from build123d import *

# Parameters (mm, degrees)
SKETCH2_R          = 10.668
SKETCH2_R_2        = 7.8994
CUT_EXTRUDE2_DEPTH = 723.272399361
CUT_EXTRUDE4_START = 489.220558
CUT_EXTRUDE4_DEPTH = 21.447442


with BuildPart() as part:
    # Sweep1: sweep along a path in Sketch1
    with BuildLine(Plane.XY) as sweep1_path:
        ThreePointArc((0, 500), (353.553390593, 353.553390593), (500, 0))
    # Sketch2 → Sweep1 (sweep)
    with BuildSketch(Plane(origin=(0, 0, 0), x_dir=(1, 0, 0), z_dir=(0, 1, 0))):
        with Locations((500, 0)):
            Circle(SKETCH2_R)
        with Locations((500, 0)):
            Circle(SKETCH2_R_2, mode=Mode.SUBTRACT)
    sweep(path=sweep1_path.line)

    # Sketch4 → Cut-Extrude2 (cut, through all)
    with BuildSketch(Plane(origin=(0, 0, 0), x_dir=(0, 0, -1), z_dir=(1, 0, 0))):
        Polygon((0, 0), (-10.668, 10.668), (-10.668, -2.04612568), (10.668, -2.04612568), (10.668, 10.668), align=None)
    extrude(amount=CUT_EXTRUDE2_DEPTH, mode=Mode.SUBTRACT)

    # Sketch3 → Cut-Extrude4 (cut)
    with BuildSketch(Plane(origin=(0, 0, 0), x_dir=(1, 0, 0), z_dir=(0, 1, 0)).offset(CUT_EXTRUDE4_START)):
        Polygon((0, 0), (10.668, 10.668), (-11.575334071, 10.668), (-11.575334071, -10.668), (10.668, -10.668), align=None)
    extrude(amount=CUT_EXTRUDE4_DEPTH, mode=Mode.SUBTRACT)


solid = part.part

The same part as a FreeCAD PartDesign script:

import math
import FreeCAD as App
import Part
import Sketcher
from FreeCAD import Vector
Q = App.Units.Quantity


def add_polygon(sketch, points):
    """Adds a closed chain of lines whose ends are joined by coincident constraints."""
    first, n = sketch.GeometryCount, len(points)
    for a, b in zip(points, points[1:] + points[:1]):
        sketch.addGeometry(Part.LineSegment(App.Vector(*a, 0), App.Vector(*b, 0)), False)
    for i in range(n):
        sketch.addConstraint(Sketcher.Constraint("Coincident", first + i, 2, first + (i + 1) % n, 1))

doc = App.newDocument("Part")
body = doc.addObject("PartDesign::Body", "Body")

# Sketch on XZ plane
sketch1 = body.newObject("Sketcher::SketchObject", "Sketch")
sketch1.AttachmentSupport = (doc.getObject("XZ_Plane"), [""])
sketch1.MapMode = "FlatFace"
sketch1.addGeometry([
    Part.Circle(Vector(500, 0, 0), Vector(0, 0, 1), 10.668),
    Part.Circle(Vector(500, 0, 0), Vector(0, 0, 1), 7.8994),
], False)
sketch1.addConstraint([
    Sketcher.Constraint("Coincident", 1, 3, 0, 3),
    Sketcher.Constraint("PointOnObject", 0, 3, -1),
    Sketcher.Constraint("Diameter", 0, Q("0.84 in")),
    Sketcher.Constraint("Diameter", 1, Q("0.622 in")),
    Sketcher.Constraint("DistanceX", -1, 1, 0, 3, 500.0),
])

# Sketch on XY plane
sketch2 = body.newObject("Sketcher::SketchObject", "Sketch001")
sketch2.AttachmentSupport = (doc.getObject("XY_Plane"), [""])
sketch2.MapMode = "FlatFace"
sketch2.addGeometry(Part.ArcOfCircle(Part.Circle(Vector(0, 0, 0), Vector(0, 0, 1), 500), math.radians(0), math.radians(90)), False)
sketch2.addConstraint([
    Sketcher.Constraint("Coincident", 0, 3, -1, 1),
    Sketcher.Constraint("PointOnObject", 0, 1, -1),
    Sketcher.Constraint("PointOnObject", 0, 2, -2),
    Sketcher.Constraint("Radius", 0, 500.0),
])
doc.recompute()

additivepipe = body.newObject("PartDesign::AdditivePipe", "AdditivePipe")
additivepipe.Profile = sketch1
additivepipe.Spine = (sketch2, ["Edge1"])

# Sketch on YZ plane
sketch3 = body.newObject("Sketcher::SketchObject", "Sketch002")
sketch3.AttachmentSupport = (doc.getObject("YZ_Plane"), [""])
sketch3.MapMode = "FlatFace"
add_polygon(sketch3, [(0, 0), (10.668, 10.668), (-2.046126, 10.668), (-2.046126, -10.668), (10.668, -10.668)])  # lines 0-4
sketch3.addConstraint([
    Sketcher.Constraint("Horizontal", 1),
    Sketcher.Constraint("Vertical", 2),
    Sketcher.Constraint("Horizontal", 3),
    Sketcher.Constraint("Coincident", 4, 2, -1, 1),
    Sketcher.Constraint("Symmetric", 0, 2, 3, 2, -1),
    Sketcher.Constraint("Perpendicular", 0, 4),
    Sketcher.Constraint("DistanceY", 2, 2, 2, 1, Q("0.84 in")),
    Sketcher.Constraint("DistanceX", 1, 2, 1, 1, 12.714126),
])
pocket1 = body.newObject("PartDesign::Pocket", "Pocket")
pocket1.Profile = sketch3
pocket1.Type = "ThroughAll"
pocket1.Reversed = True

# Sketch on XZ plane
sketch4 = body.newObject("Sketcher::SketchObject", "Sketch003")
sketch4.AttachmentSupport = (doc.getObject("XZ_Plane"), [""])
sketch4.MapMode = "FlatFace"
sketch4.AttachmentOffset = App.Placement(Vector(0, 0, -489.220558), App.Rotation())
add_polygon(sketch4, [(0, 0), (10.668, -10.668), (-11.575334, -10.668), (-11.575334, 10.668), (10.668, 10.668)])  # lines 0-4
sketch4.addConstraint([
    Sketcher.Constraint("Horizontal", 1),
    Sketcher.Constraint("Vertical", 2),
    Sketcher.Constraint("Horizontal", 3),
    Sketcher.Constraint("Coincident", 4, 2, -1, 1),
    Sketcher.Constraint("Symmetric", 0, 2, 3, 2, -1),
    Sketcher.Constraint("Perpendicular", 0, 4),
    Sketcher.Constraint("DistanceY", 2, 1, 2, 2, Q("0.84 in")),
    Sketcher.Constraint("DistanceX", 1, 2, 1, 1, 22.243334),
])
pocket2 = body.newObject("PartDesign::Pocket", "Pocket001")
pocket2.Profile = sketch4
pocket2.Length = 21.447442

doc.recompute()
